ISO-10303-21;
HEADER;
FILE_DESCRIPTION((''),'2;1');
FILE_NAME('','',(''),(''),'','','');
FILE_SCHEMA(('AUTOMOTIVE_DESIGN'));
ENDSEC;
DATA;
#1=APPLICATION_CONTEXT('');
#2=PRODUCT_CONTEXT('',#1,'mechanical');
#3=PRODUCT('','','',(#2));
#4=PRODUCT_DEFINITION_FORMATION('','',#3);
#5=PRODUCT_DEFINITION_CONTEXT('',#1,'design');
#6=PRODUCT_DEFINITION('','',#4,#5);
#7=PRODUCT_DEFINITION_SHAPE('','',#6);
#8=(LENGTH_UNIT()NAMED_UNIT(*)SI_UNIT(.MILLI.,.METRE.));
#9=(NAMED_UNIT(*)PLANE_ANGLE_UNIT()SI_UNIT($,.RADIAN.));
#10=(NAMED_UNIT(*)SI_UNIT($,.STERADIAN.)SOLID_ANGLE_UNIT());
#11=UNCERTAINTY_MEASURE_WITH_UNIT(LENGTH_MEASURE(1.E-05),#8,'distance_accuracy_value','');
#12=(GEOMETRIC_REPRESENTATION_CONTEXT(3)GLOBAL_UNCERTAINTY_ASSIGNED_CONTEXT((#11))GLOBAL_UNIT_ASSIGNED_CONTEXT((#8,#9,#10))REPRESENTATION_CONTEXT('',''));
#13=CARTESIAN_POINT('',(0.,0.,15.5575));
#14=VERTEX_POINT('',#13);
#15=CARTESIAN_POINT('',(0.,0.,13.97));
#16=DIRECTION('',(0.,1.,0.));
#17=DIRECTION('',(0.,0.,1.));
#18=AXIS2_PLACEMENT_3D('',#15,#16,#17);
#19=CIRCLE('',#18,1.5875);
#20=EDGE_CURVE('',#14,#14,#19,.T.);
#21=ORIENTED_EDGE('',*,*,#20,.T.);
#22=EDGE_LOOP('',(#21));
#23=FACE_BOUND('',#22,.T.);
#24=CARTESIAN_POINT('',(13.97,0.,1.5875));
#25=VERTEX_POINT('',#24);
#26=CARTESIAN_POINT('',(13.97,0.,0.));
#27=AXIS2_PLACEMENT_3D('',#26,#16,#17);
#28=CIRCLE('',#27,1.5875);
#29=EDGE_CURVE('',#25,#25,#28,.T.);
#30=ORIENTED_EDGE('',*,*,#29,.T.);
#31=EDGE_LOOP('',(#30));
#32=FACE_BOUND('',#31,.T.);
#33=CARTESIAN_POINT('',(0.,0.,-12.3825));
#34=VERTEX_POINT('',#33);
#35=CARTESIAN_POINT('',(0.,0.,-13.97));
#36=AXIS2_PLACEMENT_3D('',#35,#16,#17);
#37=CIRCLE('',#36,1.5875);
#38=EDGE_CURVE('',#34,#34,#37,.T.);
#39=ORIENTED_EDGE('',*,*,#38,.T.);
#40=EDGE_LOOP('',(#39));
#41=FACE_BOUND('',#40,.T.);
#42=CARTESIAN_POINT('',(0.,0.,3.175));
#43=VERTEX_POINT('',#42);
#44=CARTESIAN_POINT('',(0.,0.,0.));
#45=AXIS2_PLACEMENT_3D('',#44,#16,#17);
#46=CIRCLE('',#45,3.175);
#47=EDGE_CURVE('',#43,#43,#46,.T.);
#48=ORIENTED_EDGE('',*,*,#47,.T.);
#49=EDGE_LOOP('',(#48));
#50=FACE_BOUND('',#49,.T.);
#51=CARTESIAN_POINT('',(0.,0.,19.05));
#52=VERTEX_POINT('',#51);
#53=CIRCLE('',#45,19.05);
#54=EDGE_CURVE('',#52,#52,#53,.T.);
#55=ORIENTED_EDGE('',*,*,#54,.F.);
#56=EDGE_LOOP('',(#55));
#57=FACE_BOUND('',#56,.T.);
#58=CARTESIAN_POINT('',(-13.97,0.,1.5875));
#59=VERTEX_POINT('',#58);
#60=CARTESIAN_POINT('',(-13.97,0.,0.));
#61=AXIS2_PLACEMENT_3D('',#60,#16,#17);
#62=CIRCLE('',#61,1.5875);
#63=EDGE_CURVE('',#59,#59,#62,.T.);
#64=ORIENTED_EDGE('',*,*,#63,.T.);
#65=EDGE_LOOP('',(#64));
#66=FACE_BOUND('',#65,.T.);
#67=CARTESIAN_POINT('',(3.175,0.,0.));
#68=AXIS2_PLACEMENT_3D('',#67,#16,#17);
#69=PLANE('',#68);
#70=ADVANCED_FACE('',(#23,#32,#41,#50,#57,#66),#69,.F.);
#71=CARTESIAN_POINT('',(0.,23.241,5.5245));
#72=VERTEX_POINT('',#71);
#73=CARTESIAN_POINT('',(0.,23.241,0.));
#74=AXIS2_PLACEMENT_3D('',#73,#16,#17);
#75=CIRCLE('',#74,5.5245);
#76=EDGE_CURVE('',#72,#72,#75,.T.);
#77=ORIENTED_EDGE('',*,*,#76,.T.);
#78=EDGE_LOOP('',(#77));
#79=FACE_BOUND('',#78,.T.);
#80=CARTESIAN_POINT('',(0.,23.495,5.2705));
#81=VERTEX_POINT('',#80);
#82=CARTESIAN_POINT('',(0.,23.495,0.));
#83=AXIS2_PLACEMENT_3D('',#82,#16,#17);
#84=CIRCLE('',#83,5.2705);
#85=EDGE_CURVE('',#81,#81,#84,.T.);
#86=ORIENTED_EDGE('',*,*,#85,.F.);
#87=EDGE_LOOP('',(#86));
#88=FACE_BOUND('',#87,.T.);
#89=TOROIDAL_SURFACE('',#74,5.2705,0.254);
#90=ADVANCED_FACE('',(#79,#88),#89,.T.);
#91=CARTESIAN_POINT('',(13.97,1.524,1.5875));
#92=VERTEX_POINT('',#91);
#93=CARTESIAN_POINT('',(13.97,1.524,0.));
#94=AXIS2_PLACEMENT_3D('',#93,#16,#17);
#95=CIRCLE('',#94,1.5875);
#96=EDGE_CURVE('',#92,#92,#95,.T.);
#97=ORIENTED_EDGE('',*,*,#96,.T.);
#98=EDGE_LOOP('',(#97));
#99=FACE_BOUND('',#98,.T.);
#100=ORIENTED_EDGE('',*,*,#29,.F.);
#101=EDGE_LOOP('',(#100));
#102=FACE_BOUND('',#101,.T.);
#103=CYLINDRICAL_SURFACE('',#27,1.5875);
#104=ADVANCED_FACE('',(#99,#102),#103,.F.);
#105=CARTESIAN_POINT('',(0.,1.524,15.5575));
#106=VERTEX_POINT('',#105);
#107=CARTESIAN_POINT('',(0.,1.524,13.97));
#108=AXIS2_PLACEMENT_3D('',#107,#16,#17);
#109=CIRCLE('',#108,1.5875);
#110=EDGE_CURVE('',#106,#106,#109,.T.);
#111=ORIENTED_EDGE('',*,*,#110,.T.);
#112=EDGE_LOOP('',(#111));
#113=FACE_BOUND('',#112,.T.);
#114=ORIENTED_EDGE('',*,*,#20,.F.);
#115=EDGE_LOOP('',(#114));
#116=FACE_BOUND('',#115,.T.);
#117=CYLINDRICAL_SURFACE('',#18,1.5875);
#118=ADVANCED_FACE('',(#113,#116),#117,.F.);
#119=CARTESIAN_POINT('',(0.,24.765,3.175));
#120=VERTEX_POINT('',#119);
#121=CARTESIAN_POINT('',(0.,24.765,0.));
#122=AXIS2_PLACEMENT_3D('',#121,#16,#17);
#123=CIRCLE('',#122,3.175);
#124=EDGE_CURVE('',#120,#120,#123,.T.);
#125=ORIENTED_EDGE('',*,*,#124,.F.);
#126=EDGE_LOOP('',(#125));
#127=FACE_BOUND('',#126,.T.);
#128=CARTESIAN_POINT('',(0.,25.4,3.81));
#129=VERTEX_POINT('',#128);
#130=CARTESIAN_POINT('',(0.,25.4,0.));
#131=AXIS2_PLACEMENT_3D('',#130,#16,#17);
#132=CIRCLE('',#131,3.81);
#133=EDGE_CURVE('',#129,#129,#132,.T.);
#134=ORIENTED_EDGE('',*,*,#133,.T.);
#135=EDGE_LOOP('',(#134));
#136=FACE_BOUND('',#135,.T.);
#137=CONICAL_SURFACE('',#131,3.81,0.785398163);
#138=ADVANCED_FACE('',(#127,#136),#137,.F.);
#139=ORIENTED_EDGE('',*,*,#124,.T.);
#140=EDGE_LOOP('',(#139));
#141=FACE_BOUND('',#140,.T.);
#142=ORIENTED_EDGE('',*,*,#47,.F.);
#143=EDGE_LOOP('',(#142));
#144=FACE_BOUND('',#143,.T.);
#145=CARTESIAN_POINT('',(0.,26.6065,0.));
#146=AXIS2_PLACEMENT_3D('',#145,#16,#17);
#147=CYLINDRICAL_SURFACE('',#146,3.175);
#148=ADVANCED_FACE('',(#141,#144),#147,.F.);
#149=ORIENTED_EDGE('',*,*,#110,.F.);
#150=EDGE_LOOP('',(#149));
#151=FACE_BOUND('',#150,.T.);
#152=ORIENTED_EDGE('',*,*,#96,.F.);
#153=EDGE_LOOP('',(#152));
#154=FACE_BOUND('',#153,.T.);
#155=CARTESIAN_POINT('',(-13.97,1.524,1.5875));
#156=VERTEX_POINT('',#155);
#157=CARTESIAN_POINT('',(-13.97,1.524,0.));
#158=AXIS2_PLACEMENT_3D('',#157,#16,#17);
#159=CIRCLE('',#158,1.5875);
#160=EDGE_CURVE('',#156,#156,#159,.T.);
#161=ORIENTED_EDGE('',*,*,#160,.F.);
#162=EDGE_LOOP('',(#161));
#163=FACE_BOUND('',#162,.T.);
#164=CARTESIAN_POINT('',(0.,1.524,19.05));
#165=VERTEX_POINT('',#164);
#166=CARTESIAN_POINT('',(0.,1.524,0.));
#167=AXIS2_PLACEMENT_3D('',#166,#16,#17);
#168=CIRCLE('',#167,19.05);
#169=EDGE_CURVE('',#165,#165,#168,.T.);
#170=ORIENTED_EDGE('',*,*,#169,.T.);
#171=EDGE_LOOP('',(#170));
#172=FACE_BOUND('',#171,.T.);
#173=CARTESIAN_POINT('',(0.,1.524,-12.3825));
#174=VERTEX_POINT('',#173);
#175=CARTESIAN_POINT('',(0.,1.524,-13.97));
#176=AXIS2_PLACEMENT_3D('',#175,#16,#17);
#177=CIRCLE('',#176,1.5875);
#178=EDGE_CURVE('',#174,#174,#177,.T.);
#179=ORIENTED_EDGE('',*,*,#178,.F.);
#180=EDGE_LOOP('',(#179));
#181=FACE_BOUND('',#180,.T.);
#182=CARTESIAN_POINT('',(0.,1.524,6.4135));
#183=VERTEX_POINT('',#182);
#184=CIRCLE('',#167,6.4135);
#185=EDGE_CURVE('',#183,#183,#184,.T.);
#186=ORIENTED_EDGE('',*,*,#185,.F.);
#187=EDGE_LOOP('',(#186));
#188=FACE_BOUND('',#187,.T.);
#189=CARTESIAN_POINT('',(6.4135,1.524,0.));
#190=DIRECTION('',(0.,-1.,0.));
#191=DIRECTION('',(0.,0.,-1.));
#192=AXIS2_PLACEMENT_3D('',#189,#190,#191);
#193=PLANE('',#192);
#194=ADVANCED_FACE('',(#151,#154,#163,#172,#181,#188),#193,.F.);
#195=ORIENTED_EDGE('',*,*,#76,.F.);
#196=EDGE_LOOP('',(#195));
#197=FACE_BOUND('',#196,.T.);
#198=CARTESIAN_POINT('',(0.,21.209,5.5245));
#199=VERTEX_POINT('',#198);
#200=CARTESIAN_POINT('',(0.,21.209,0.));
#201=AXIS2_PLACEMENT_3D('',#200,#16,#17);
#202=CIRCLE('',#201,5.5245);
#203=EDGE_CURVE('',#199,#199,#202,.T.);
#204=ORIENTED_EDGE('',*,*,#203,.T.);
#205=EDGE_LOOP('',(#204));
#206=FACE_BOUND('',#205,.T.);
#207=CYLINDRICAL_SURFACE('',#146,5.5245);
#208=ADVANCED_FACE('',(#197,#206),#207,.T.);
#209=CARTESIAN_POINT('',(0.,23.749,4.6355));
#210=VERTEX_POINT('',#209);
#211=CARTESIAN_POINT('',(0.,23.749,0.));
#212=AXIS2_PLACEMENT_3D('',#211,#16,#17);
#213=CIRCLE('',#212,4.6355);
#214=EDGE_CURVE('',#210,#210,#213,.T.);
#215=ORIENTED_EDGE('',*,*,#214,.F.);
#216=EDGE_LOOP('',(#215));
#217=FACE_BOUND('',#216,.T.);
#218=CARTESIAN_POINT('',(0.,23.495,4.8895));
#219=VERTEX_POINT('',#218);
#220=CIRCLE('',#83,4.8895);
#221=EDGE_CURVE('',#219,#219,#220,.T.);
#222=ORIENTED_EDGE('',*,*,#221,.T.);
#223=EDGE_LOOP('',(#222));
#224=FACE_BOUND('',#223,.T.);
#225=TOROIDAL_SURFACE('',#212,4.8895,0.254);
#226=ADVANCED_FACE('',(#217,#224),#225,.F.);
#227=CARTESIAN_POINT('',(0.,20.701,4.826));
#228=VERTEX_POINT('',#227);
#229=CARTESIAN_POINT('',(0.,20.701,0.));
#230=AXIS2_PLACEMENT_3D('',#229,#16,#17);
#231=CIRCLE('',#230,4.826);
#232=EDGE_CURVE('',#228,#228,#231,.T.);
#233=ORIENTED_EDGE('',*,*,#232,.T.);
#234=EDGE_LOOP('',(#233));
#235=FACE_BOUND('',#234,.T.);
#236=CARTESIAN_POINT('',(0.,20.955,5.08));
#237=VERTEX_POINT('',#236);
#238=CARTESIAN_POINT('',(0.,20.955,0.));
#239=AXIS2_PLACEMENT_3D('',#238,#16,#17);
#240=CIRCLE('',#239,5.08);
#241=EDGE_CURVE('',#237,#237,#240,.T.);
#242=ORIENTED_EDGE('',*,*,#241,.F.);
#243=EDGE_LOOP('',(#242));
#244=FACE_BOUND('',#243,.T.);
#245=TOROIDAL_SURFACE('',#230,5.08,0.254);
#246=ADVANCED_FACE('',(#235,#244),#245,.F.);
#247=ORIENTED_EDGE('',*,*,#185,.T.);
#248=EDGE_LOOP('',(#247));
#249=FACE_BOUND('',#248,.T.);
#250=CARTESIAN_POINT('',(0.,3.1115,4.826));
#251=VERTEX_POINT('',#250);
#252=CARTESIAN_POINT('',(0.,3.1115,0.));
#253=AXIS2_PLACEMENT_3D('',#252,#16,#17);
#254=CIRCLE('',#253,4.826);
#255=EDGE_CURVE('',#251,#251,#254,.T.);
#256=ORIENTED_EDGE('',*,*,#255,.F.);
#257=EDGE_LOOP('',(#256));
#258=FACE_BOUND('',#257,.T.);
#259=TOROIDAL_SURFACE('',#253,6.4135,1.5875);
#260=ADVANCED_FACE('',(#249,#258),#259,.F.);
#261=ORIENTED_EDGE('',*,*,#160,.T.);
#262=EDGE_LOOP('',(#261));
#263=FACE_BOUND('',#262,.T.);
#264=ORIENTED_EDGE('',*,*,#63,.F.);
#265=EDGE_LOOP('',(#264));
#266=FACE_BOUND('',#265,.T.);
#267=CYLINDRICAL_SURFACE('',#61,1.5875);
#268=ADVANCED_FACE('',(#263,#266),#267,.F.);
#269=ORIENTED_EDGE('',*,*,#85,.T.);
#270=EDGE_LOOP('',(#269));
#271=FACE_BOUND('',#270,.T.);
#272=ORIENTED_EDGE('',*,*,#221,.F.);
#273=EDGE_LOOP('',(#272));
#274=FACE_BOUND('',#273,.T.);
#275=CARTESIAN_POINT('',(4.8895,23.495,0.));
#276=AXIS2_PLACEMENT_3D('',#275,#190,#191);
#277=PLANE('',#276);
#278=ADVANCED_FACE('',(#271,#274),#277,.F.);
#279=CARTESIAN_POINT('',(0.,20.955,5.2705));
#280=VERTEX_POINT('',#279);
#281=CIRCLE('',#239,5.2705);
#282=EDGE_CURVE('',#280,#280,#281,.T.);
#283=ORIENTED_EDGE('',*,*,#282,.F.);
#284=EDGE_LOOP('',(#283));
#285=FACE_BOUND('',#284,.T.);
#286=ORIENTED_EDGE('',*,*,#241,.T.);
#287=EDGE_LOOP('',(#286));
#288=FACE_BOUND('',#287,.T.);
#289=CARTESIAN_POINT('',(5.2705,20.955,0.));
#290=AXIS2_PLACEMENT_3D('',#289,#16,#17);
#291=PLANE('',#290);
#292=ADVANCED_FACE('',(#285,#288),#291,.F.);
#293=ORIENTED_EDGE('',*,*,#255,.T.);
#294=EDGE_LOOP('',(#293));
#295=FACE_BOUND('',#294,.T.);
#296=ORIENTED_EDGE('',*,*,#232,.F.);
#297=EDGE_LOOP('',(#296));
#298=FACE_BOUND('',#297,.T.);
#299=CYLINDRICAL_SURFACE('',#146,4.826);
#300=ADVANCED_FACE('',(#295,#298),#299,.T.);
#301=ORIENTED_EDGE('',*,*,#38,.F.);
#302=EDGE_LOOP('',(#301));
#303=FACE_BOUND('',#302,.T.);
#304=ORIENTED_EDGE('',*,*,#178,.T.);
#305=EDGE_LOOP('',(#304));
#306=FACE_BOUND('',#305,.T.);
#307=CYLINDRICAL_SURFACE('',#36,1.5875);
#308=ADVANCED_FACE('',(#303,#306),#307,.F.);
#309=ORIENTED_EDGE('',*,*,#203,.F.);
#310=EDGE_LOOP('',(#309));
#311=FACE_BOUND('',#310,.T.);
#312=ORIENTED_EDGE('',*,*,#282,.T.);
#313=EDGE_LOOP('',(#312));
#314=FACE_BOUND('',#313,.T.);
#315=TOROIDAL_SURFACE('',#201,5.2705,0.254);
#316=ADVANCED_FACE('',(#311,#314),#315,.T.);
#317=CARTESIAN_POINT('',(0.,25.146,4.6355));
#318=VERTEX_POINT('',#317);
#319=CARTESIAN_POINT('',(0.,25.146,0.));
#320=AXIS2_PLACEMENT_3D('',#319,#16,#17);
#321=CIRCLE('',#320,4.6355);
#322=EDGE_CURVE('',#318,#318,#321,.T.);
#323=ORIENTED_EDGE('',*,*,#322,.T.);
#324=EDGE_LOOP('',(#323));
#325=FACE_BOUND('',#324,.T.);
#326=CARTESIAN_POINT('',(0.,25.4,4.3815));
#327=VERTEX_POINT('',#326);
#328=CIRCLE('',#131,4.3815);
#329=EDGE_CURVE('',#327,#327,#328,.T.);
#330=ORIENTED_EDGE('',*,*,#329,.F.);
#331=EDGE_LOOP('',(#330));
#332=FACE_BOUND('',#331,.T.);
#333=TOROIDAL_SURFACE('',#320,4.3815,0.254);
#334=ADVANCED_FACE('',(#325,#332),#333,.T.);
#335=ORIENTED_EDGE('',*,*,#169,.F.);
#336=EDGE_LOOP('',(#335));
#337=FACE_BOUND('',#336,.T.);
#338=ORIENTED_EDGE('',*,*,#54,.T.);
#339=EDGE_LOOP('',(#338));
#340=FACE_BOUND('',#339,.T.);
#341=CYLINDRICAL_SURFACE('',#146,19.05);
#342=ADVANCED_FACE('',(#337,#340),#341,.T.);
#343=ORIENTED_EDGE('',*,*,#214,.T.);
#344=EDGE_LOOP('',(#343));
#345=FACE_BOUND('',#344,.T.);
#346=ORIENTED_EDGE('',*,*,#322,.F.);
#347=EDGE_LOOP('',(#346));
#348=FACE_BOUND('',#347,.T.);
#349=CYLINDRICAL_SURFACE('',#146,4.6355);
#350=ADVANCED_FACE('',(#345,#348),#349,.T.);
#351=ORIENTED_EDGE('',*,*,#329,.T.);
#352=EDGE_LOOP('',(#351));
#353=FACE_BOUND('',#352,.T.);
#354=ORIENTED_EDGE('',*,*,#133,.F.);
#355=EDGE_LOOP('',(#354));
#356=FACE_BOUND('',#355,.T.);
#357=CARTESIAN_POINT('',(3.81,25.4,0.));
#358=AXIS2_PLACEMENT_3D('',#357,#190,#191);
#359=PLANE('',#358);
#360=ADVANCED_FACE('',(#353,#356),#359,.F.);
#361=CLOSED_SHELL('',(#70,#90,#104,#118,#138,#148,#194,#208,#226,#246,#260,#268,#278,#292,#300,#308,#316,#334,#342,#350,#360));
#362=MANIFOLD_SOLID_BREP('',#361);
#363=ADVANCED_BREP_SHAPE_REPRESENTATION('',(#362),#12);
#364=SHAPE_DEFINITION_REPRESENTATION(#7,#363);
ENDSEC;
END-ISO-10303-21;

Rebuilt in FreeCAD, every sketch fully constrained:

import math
import FreeCAD as App
import Part
import Sketcher

V = App.Vector
Q = App.Units.Quantity

doc = App.newDocument("Part")
body = doc.addObject("PartDesign::Body", "Body")

# Sketch on XY plane
sketch1 = body.newObject("Sketcher::SketchObject", "Sketch")
sketch1.AttachmentSupport = (doc.getObject("XY_Plane"), [""])
sketch1.MapMode = "FlatFace"
sketch1.addGeometry([
    Part.LineSegment(V(4.64, 23.75, 0), V(4.64, 25.15, 0)),  # 0
    Part.ArcOfCircle(Part.Circle(V(4.38, 25.15, 0), V(0, 0, 1), 0.25), math.radians(0), math.radians(90)),  # 1
    Part.LineSegment(V(4.38, 25.4, 0), V(3.81, 25.4, 0)),  # 2
    Part.LineSegment(V(3.81, 25.4, 0), V(3.17, 24.77, 0)),  # 3
    Part.LineSegment(V(3.17, 24.77, 0), V(3.17, 0, 0)),  # 4
    Part.LineSegment(V(3.17, 0, 0), V(19.05, 0, 0)),  # 5
    Part.LineSegment(V(19.05, 0, 0), V(19.05, 1.52, 0)),  # 6
    Part.LineSegment(V(19.05, 1.52, 0), V(6.41, 1.52, 0)),  # 7
    Part.ArcOfCircle(Part.Circle(V(6.41, 3.11, 0), V(0, 0, 1), 1.59), math.radians(180), math.radians(270)),  # 8
    Part.LineSegment(V(4.83, 3.11, 0), V(4.83, 20.7, 0)),  # 9
    Part.ArcOfCircle(Part.Circle(V(5.08, 20.7, 0), V(0, 0, 1), 0.25), math.radians(90), math.radians(180)),  # 10
    Part.LineSegment(V(5.08, 20.95, 0), V(5.27, 20.95, 0)),  # 11
    Part.ArcOfCircle(Part.Circle(V(5.27, 21.21, 0), V(0, 0, 1), 0.25), math.radians(-90), math.radians(0)),  # 12
    Part.LineSegment(V(5.52, 21.21, 0), V(5.52, 23.24, 0)),  # 13
    Part.ArcOfCircle(Part.Circle(V(5.27, 23.24, 0), V(0, 0, 1), 0.25), math.radians(0), math.radians(90)),  # 14
    Part.LineSegment(V(5.27, 23.5, 0), V(4.89, 23.5, 0)),  # 15
    Part.ArcOfCircle(Part.Circle(V(4.89, 23.75, 0), V(0, 0, 1), 0.25), math.radians(-180), math.radians(-90)),  # 16
], False)
sketch1.addConstraint([
    Sketcher.Constraint("Tangent", 0, 2, 1, 1),
    Sketcher.Constraint("Tangent", 1, 2, 2, 1),
    Sketcher.Constraint("Coincident", 2, 2, 3, 1),
    Sketcher.Constraint("Coincident", 3, 2, 4, 1),
    Sketcher.Constraint("Coincident", 4, 2, 5, 1),
    Sketcher.Constraint("Coincident", 5, 2, 6, 1),
    Sketcher.Constraint("Coincident", 6, 2, 7, 1),
    Sketcher.Constraint("Tangent", 7, 2, 8, 2),
    Sketcher.Constraint("Tangent", 8, 1, 9, 1),
    Sketcher.Constraint("Tangent", 9, 2, 10, 2),
    Sketcher.Constraint("Tangent", 10, 1, 11, 1),
    Sketcher.Constraint("Tangent", 11, 2, 12, 1),
    Sketcher.Constraint("Tangent", 12, 2, 13, 1),
    Sketcher.Constraint("Tangent", 13, 2, 14, 1),
    Sketcher.Constraint("Tangent", 14, 2, 15, 1),
    Sketcher.Constraint("Tangent", 15, 2, 16, 2),
    Sketcher.Constraint("Tangent", 16, 1, 0, 1),
    Sketcher.Constraint("Vertical", 0),
    Sketcher.Constraint("Horizontal", 2),
    Sketcher.Constraint("Vertical", 4),
    Sketcher.Constraint("Horizontal", 5),
    Sketcher.Constraint("Vertical", 6),
    Sketcher.Constraint("Horizontal", 7),
    Sketcher.Constraint("Vertical", 9),
    Sketcher.Constraint("Horizontal", 11),
    Sketcher.Constraint("Vertical", 13),
    Sketcher.Constraint("Horizontal", 15),
    Sketcher.Constraint("Equal", 1, 10),
    Sketcher.Constraint("Equal", 10, 12),
    Sketcher.Constraint("Equal", 12, 14),
    Sketcher.Constraint("Equal", 14, 16),
    Sketcher.Constraint("PointOnObject", 4, 2, -1),
    Sketcher.Constraint("Radius", 1, Q("0.01 in")),
    Sketcher.Constraint("DistanceY", -1, 1, 1, 2, Q("1 in")),
    Sketcher.Constraint("Angle", 3, Q("-135 deg")),
    Sketcher.Constraint("Radius", 8, Q("0.0625 in")),
    Sketcher.Constraint("DistanceY", 6, 1, 6, 2, Q("0.06 in")),
    Sketcher.Constraint("DistanceY", 13, 1, 13, 2, Q("0.08 in")),
    Sketcher.Constraint("DistanceX", -1, 1, 10, 3, Q("0.2 in")),
    Sketcher.Constraint("DistanceX", 5, 1, 5, 2, Q("0.625 in")),
    Sketcher.Constraint("DistanceX", 15, 2, 15, 1, Q("0.015 in")),
    Sketcher.Constraint("DistanceY", 0, 1, 0, 2, Q("0.055 in")),
    Sketcher.Constraint("DistanceY", 4, 2, 4, 1, Q("0.975 in")),
    Sketcher.Constraint("DistanceX", -1, 1, 2, 2, Q("0.15 in")),
    Sketcher.Constraint("DistanceX", 1, 3, 8, 3, Q("0.08 in")),
])
revolution = body.newObject("PartDesign::Revolution", "Revolution")
revolution.Profile = sketch1
revolution.ReferenceAxis = (sketch1, ["V_Axis"])
revolution.Angle = 360

# Sketch on XZ plane
sketch2 = body.newObject("Sketcher::SketchObject", "Sketch001")
sketch2.AttachmentSupport = (doc.getObject("XZ_Plane"), [""])
sketch2.MapMode = "FlatFace"
sketch2.AttachmentOffset = App.Placement(V(0, 0, -0.06 * 25.4), App.Rotation())
sketch2.addGeometry([
    Part.Circle(V(0, -14, 0), V(0, 0, 1), 1.6),
    Part.Circle(V(14, 0, 0), V(0, 0, 1), 1.6),
    Part.Circle(V(0, 14, 0), V(0, 0, 1), 1.6),
    Part.Circle(V(-14, 0, 0), V(0, 0, 1), 1.6),
], False)
sketch2.addConstraint([
    Sketcher.Constraint("Equal", 0, 1),
    Sketcher.Constraint("Equal", 1, 2),
    Sketcher.Constraint("Equal", 2, 3),
    Sketcher.Constraint("Symmetric", 0, 3, 2, 3, -1, 1),
    Sketcher.Constraint("Symmetric", 1, 3, 3, 3, -1, 1),
    Sketcher.Constraint("PointOnObject", 0, 3, -2),
    Sketcher.Constraint("PointOnObject", 1, 3, -1),
    Sketcher.Constraint("Diameter", 0, Q("0.125 in")),
    Sketcher.Constraint("DistanceY", 0, 3, 2, 3, Q("1.1 in")),
    Sketcher.Constraint("DistanceX", 3, 3, 1, 3, Q("1.1 in")),
])
pocket1 = body.newObject("PartDesign::Pocket", "Pocket")
pocket1.Profile = sketch2
pocket1.Type = "ThroughAll"
pocket1.Reversed = True

doc.recompute()
